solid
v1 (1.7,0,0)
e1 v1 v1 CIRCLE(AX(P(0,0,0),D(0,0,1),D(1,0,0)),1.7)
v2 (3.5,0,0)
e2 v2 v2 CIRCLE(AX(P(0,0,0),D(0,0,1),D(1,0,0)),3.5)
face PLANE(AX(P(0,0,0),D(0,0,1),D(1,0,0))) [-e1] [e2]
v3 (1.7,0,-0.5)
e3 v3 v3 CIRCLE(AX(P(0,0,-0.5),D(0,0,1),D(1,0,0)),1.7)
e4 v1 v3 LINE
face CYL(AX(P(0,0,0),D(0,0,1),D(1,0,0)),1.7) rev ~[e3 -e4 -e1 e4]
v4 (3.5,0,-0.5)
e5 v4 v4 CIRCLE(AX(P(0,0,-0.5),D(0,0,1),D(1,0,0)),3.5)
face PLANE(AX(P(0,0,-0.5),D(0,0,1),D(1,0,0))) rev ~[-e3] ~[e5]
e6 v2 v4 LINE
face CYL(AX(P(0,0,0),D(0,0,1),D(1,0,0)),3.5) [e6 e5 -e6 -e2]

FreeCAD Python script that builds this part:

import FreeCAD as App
import Part
import Sketcher

V = App.Vector

doc = App.newDocument("Part")
body = doc.addObject("PartDesign::Body", "Body")

sketch1 = body.newObject("Sketcher::SketchObject", "Sketch")
sketch1.AttachmentSupport = (doc.getObject("XY_Plane"), [""])
sketch1.MapMode = "FlatFace"
sketch1.addGeometry(Part.Circle(V(0, 0, 0), V(0, 0, 1), 3.5), False)
sketch1.addGeometry(Part.Circle(V(0, 0, 0), V(0, 0, 1), 1.7), False)
sketch1.addConstraint(Sketcher.Constraint("Coincident", 0, 3, -1, 1))
sketch1.addConstraint(Sketcher.Constraint("Coincident", 1, 3, -1, 1))
sketch1.addConstraint(Sketcher.Constraint("Diameter", 0, 7.0))
sketch1.addConstraint(Sketcher.Constraint("Diameter", 1, 3.4))
pad1 = body.newObject("PartDesign::Pad", "Pad")
pad1.Profile = sketch1
pad1.Length = 0.5
pad1.Reversed = True

doc.recompute()
